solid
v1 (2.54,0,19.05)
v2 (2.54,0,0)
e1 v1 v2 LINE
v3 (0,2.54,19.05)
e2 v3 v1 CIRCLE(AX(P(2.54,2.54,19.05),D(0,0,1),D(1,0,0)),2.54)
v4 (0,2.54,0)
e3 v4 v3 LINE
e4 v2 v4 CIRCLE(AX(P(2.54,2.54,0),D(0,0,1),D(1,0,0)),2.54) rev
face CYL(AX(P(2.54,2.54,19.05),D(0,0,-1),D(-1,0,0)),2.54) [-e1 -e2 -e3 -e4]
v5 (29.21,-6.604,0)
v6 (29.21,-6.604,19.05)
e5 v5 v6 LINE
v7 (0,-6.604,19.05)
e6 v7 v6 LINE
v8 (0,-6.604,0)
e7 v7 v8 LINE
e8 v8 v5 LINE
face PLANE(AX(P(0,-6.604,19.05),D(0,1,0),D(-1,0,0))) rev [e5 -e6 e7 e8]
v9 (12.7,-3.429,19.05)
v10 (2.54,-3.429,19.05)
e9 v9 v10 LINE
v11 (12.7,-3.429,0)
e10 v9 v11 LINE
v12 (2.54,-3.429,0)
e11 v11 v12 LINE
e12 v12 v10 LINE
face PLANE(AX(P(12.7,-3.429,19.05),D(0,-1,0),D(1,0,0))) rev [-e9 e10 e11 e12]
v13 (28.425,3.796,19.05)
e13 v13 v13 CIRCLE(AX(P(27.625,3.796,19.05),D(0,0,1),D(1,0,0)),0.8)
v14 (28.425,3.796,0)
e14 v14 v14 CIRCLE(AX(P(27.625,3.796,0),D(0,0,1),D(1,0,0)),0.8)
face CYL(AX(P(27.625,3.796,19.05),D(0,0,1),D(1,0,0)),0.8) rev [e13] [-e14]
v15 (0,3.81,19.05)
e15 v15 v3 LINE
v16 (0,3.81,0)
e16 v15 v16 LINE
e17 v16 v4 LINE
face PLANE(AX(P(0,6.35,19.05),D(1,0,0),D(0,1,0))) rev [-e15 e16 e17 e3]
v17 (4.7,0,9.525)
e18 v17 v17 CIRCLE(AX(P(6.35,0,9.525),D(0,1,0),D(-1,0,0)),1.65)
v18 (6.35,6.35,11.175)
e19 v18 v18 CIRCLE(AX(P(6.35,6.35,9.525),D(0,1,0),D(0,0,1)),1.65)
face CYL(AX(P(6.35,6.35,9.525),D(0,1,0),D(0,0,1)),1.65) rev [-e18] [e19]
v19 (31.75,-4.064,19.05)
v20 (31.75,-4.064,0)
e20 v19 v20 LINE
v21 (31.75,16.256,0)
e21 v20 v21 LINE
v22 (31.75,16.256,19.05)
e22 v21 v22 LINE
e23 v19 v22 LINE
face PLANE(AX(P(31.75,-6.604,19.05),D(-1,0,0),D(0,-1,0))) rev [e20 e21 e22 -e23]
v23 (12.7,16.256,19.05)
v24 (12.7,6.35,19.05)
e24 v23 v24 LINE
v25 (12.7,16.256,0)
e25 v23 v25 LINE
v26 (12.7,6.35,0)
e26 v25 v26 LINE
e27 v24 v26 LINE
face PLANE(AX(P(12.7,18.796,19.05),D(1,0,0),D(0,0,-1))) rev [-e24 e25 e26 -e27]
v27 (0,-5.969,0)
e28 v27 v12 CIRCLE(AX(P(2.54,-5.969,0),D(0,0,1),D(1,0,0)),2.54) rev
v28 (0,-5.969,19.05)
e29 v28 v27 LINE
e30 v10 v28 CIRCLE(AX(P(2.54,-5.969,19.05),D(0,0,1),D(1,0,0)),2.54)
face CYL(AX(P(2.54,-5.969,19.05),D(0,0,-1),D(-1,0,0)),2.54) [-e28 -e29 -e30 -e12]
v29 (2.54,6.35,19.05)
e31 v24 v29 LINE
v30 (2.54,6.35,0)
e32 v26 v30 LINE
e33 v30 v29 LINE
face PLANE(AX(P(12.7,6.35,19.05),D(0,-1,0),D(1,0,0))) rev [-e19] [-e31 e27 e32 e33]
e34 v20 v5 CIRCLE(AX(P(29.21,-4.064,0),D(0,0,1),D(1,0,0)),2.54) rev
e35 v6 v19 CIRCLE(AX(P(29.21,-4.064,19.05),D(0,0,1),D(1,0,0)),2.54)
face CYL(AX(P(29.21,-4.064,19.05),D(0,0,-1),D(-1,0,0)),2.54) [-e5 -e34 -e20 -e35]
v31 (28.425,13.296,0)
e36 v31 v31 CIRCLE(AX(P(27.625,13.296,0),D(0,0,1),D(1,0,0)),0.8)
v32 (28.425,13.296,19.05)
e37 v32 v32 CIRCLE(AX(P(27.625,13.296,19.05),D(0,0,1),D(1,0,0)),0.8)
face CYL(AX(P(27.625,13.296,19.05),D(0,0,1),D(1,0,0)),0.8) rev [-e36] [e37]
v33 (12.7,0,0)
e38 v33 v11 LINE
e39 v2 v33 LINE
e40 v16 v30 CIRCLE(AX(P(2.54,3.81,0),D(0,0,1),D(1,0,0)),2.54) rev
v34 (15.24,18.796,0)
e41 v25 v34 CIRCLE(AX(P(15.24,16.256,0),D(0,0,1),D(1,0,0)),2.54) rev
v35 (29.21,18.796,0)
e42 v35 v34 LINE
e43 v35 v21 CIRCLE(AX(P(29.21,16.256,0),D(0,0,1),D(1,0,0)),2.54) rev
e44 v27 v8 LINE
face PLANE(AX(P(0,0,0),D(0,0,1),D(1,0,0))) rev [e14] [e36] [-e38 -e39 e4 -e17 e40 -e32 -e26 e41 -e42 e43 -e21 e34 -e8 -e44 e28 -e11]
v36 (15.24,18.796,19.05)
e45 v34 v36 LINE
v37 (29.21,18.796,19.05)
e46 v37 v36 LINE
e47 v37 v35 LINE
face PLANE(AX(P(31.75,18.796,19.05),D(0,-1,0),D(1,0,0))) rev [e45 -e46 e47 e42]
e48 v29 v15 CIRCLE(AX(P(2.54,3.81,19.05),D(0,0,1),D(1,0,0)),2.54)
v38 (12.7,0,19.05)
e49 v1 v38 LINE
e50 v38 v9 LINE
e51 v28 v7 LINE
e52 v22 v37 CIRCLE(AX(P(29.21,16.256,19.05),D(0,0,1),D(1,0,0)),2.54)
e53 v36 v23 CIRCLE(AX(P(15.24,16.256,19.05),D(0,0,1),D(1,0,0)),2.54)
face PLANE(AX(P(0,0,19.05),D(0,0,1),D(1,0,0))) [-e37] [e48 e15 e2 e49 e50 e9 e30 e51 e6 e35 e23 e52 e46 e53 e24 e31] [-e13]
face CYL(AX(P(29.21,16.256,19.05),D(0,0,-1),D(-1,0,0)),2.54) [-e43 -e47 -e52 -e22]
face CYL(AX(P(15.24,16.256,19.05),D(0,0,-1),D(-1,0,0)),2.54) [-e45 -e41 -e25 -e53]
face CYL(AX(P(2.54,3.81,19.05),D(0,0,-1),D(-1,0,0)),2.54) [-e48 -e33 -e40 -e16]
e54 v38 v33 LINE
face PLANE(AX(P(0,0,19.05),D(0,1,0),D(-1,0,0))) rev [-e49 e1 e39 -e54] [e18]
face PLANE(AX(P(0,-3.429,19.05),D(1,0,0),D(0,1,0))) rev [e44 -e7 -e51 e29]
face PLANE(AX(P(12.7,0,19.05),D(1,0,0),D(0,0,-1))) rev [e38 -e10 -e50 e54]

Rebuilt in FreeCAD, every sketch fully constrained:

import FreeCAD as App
import Part
import Sketcher
Q = App.Units.Quantity


def edges_at(feature, points):
    """Names of the edges that pass closest to the given points."""
    edges = feature.Shape.Edges
    near = lambda p: min(range(len(edges)), key=lambda i: edges[i].distToShape(Part.Vertex(*p))[0])
    return sorted({f"Edge{near(p) + 1}" for p in points})


def add_polygon(sketch, points):
    """Adds a closed chain of lines whose ends are joined by coincident constraints."""
    first, n = sketch.GeometryCount, len(points)
    for a, b in zip(points, points[1:] + points[:1]):
        sketch.addGeometry(Part.LineSegment(App.Vector(*a, 0), App.Vector(*b, 0)), False)
    for i in range(n):
        sketch.addConstraint(Sketcher.Constraint("Coincident", first + i, 2, first + (i + 1) % n, 1))

doc = App.newDocument("Part")
params = doc.addObject("Spreadsheet::Sheet", "Params")
for row, (alias, value) in enumerate([
    ("sketch1_height", "1 in"),
    ("sketch1_width", "0.5 in"),
    ("sketch1_width2", "1.25 in"),
    ("sketch1_height2", "0.49 in"),
    ("sketch1_height3", "0.25 in"),
    ("pad1_length", "0.75 in"),
    ("hole_diameter", "3.3 mm"),
    ("hole_depth", "0.25 in"),
    ("hole2_diameter", "1.6 mm"),
    ("hole2_depth", "0.75 in"),
    ("fillet_radius", "0.1 in"),
], start=1):
    params.set(f"A{row}", alias)
    params.set(f"B{row}", "=" + value)
    params.setAlias(f"B{row}", alias)

body = doc.addObject("PartDesign::Body", "Body")

sketch1 = body.newObject("Sketcher::SketchObject", "Sketch")
sketch1.AttachmentSupport = (doc.getObject("XY_Plane"), [""])
sketch1.MapMode = "FlatFace"
add_polygon(sketch1, [(0, 0), (12.7, 0), (12.7, -3.4), (0, -3.4), (0, -6.6), (31.8, -6.6), (31.8, 18.8), (12.7, 18.8), (12.7, 6.3), (0, 6.3)])
sketch1.addConstraint(Sketcher.Constraint("Horizontal", 0))
sketch1.addConstraint(Sketcher.Constraint("Vertical", 1))
sketch1.addConstraint(Sketcher.Constraint("Horizontal", 2))
sketch1.addConstraint(Sketcher.Constraint("Vertical", 3))
sketch1.addConstraint(Sketcher.Constraint("Horizontal", 4))
sketch1.addConstraint(Sketcher.Constraint("Vertical", 5))
sketch1.addConstraint(Sketcher.Constraint("Horizontal", 6))
sketch1.addConstraint(Sketcher.Constraint("Vertical", 7))
sketch1.addConstraint(Sketcher.Constraint("Horizontal", 8))
sketch1.addConstraint(Sketcher.Constraint("Vertical", 9))
sketch1.addConstraint(Sketcher.Constraint("Coincident", 9, 2, -1, 1))
sketch1.addConstraint(Sketcher.Constraint("PointOnObject", 2, 2, -2))
sketch1.addConstraint(Sketcher.Constraint("Vertical", 1, 2, 6, 2))
sketch1.addConstraint(Sketcher.Constraint("DistanceY", 5, 1, 5, 2, Q("1 in")))
sketch1.addConstraint(Sketcher.Constraint("DistanceX", 0, 1, 0, 2, Q("0.5 in")))
sketch1.addConstraint(Sketcher.Constraint("DistanceX", 4, 1, 4, 2, Q("1.25 in")))
sketch1.addConstraint(Sketcher.Constraint("DistanceY", 7, 2, 7, 1, Q("0.49 in")))
sketch1.addConstraint(Sketcher.Constraint("DistanceY", 9, 2, 9, 1, Q("0.25 in")))
sketch1.addConstraint(Sketcher.Constraint("DistanceY", 1, 2, 1, 1, Q("0.135 in")))
sketch1.setExpression("Constraints[23]", "Params.sketch1_height")
sketch1.setExpression("Constraints[24]", "Params.sketch1_width")
sketch1.setExpression("Constraints[25]", "Params.sketch1_width2")
sketch1.setExpression("Constraints[26]", "Params.sketch1_height2")
sketch1.setExpression("Constraints[27]", "Params.sketch1_height3")
pad1 = body.newObject("PartDesign::Pad", "Pad")
pad1.Profile = sketch1
pad1.setExpression("Length", "Params.pad1_length")

sketch2 = body.newObject("Sketcher::SketchObject", "Sketch001")
sketch2.AttachmentSupport = (doc.getObject("XZ_Plane"), [""])
sketch2.MapMode = "FlatFace"
sketch2.AttachmentOffset = App.Placement(App.Vector(0, 0, -0.25 * 25.4), App.Rotation())
sketch2.addGeometry(Part.Circle(App.Vector(6.3, 9.5, 0), App.Vector(0, 0, 1), 1.6), False)
sketch2.addConstraint(Sketcher.Constraint("Diameter", 0, 3.3))
sketch2.addConstraint(Sketcher.Constraint("DistanceX", -1, 1, 0, 3, Q("0.25 in")))
sketch2.addConstraint(Sketcher.Constraint("DistanceY", -1, 1, 0, 3, Q("0.375 in")))
doc.recompute()
hole = body.newObject("PartDesign::Hole", "Hole")
hole.Profile = sketch2
hole.ThreadType = "None"
hole.setExpression("Diameter", "Params.hole_diameter")
hole.DepthType = "Dimension"
hole.setExpression("Depth", "Params.hole_depth")
hole.DrillPoint = "Flat"
hole.Reversed = True

sketch3 = body.newObject("Sketcher::SketchObject", "Sketch002")
sketch3.AttachmentSupport = (doc.getObject("XY_Plane"), [""])
sketch3.MapMode = "FlatFace"
sketch3.AttachmentOffset = App.Placement(App.Vector(0, 0, 0.75 * 25.4), App.Rotation())
sketch3.addGeometry(Part.Circle(App.Vector(27.6, 13.3, 0), App.Vector(0, 0, 1), 0.8), False)
sketch3.addGeometry(Part.Circle(App.Vector(27.6, 3.8, 0), App.Vector(0, 0, 1), 0.8), False)
sketch3.addConstraint(Sketcher.Constraint("Equal", 0, 1))
sketch3.addConstraint(Sketcher.Constraint("Vertical", 0, 3, 1, 3))
sketch3.addConstraint(Sketcher.Constraint("Diameter", 0, 1.6))
sketch3.addConstraint(Sketcher.Constraint("DistanceX", -1, 1, 0, 3, 27.625))
sketch3.addConstraint(Sketcher.Constraint("DistanceY", -1, 1, 0, 3, 13.296))
sketch3.addConstraint(Sketcher.Constraint("DistanceY", -1, 1, 1, 3, 3.796))
doc.recompute()
hole2 = body.newObject("PartDesign::Hole", "Hole001")
hole2.Profile = sketch3
hole2.ThreadType = "None"
hole2.setExpression("Diameter", "Params.hole2_diameter")
hole2.DepthType = "Dimension"
hole2.setExpression("Depth", "Params.hole2_depth")
hole2.DrillPoint = "Flat"
doc.recompute()

fillet = body.newObject("PartDesign::Fillet", "Fillet")
fillet.Base = (hole2, edges_at(hole2, [
    (0, 6.35, 9.525),
    (12.7, 18.796, 9.525),
    (31.75, 18.796, 9.525),
    (31.75, -6.604, 9.525),
    (0, -3.429, 9.525),
    (0, 0, 9.525),
]))
fillet.setExpression("Radius", "Params.fillet_radius")

doc.recompute()
